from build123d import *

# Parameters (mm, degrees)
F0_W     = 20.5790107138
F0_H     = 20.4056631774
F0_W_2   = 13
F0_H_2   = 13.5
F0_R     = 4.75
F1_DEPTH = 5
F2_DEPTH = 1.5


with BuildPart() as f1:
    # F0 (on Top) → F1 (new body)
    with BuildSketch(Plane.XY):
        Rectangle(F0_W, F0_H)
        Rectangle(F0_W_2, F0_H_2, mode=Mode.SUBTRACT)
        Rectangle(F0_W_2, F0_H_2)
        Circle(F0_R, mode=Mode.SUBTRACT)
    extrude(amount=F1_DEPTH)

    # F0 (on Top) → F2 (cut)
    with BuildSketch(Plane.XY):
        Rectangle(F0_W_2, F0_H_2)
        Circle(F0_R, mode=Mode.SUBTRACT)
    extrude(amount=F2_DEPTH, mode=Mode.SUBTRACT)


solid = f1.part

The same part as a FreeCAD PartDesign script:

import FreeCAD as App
import Part
import Sketcher

V = App.Vector
Q = App.Units.Quantity

doc = App.newDocument("Part")
body = doc.addObject("PartDesign::Body", "Body")

# Sketch on XY plane
sketch1 = body.newObject("Sketcher::SketchObject", "Sketch")
sketch1.AttachmentSupport = (doc.getObject("XY_Plane"), [""])
sketch1.MapMode = "FlatFace"
sketch1.addGeometry([
    Part.LineSegment(V(-10.3, 10.2, 0), V(-10.3, -10.2, 0)),  # 0
    Part.LineSegment(V(-10.3, -10.2, 0), V(10.3, -10.2, 0)),  # 1
    Part.LineSegment(V(10.3, -10.2, 0), V(10.3, 10.2, 0)),  # 2
    Part.LineSegment(V(10.3, 10.2, 0), V(-10.3, 10.2, 0)),  # 3
    Part.Circle(V(0, 0, 0), V(0, 0, 1), 4.8),  # 4
], False)
sketch1.addConstraint([
    Sketcher.Constraint("Coincident", 0, 2, 1, 1),
    Sketcher.Constraint("Coincident", 1, 2, 2, 1),
    Sketcher.Constraint("Coincident", 2, 2, 3, 1),
    Sketcher.Constraint("Coincident", 3, 2, 0, 1),
    Sketcher.Constraint("Vertical", 0),
    Sketcher.Constraint("Horizontal", 1),
    Sketcher.Constraint("Vertical", 2),
    Sketcher.Constraint("Horizontal", 3),
    Sketcher.Constraint("Coincident", 4, 3, -1, 1),
    Sketcher.Constraint("Symmetric", 0, 2, 2, 2, -1, 1),
    Sketcher.Constraint("Diameter", 4, Q("9.5 mm")),
    Sketcher.Constraint("DistanceX", 1, 1, 1, 2, Q("20.579011 mm")),
    Sketcher.Constraint("DistanceY", 0, 2, 0, 1, Q("20.405663 mm")),
])
pad1 = body.newObject("PartDesign::Pad", "Pad")
pad1.Profile = sketch1
pad1.Length = 5

# Sketch on XY plane
sketch2 = body.newObject("Sketcher::SketchObject", "Sketch001")
sketch2.AttachmentSupport = (doc.getObject("XY_Plane"), [""])
sketch2.MapMode = "FlatFace"
sketch2.addGeometry([
    Part.LineSegment(V(-6.5, 6.8, 0), V(-6.5, -6.8, 0)),  # 0
    Part.LineSegment(V(-6.5, -6.8, 0), V(6.5, -6.8, 0)),  # 1
    Part.LineSegment(V(6.5, -6.8, 0), V(6.5, 6.8, 0)),  # 2
    Part.LineSegment(V(6.5, 6.8, 0), V(-6.5, 6.8, 0)),  # 3
    Part.Circle(V(0, 0, 0), V(0, 0, 1), 4.8),  # 4
], False)
sketch2.addConstraint([
    Sketcher.Constraint("Coincident", 0, 2, 1, 1),
    Sketcher.Constraint("Coincident", 1, 2, 2, 1),
    Sketcher.Constraint("Coincident", 2, 2, 3, 1),
    Sketcher.Constraint("Coincident", 3, 2, 0, 1),
    Sketcher.Constraint("Vertical", 0),
    Sketcher.Constraint("Horizontal", 1),
    Sketcher.Constraint("Vertical", 2),
    Sketcher.Constraint("Horizontal", 3),
    Sketcher.Constraint("Coincident", 4, 3, -1, 1),
    Sketcher.Constraint("Symmetric", 0, 2, 2, 2, -1, 1),
    Sketcher.Constraint("Diameter", 4, Q("9.5 mm")),
    Sketcher.Constraint("DistanceX", 1, 1, 1, 2, Q("13 mm")),
    Sketcher.Constraint("DistanceY", 0, 2, 0, 1, Q("13.5 mm")),
])
pocket1 = body.newObject("PartDesign::Pocket", "Pocket")
pocket1.Profile = sketch2
pocket1.Length = 1.5
pocket1.Reversed = True

doc.recompute()
